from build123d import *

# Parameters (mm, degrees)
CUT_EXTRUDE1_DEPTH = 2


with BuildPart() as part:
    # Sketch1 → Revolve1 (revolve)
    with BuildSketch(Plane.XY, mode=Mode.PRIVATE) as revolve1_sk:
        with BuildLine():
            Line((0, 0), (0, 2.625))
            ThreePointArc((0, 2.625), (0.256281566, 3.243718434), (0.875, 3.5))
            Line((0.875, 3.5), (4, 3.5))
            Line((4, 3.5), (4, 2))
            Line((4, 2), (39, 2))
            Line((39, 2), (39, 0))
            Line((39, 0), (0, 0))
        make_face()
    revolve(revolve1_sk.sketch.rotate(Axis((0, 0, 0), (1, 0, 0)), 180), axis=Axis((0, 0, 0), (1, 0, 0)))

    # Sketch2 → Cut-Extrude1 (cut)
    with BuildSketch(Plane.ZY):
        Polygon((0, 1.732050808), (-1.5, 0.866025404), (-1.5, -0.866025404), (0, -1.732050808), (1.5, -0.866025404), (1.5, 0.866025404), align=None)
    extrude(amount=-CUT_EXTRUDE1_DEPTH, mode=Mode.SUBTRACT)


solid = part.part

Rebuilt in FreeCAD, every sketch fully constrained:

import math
import FreeCAD as App
import Part
import Sketcher
Q = App.Units.Quantity

doc = App.newDocument("Part")
params = doc.addObject("Spreadsheet::Sheet", "Params")
for row, (alias, value) in enumerate([
    ("sketch1_width", "39 mm"),
    ("sketch1_width2", "35 mm"),
    ("sketch1_height", "2 mm"),
    ("sketch1_height2", "1.5 mm"),
    ("revolution_angle", "360 deg"),
    ("pocket1_length", "2 mm"),
], start=1):
    params.set(f"A{row}", alias)
    params.set(f"B{row}", "=" + value)
    params.setAlias(f"B{row}", alias)

body = doc.addObject("PartDesign::Body", "Body")

# Sketch on XY plane
sketch1 = body.newObject("Sketcher::SketchObject", "Sketch")
sketch1.AttachmentSupport = (doc.getObject("XY_Plane"), [""])
sketch1.MapMode = "FlatFace"
sketch1.addGeometry([
    Part.LineSegment(App.Vector(0, 2.6, 0), App.Vector(0, 0, 0)),  # 0
    Part.LineSegment(App.Vector(0, 0, 0), App.Vector(39, 0, 0)),  # 1
    Part.LineSegment(App.Vector(39, 0, 0), App.Vector(39, 2, 0)),  # 2
    Part.LineSegment(App.Vector(39, 2, 0), App.Vector(4, 2, 0)),  # 3
    Part.LineSegment(App.Vector(4, 2, 0), App.Vector(4, 3.5, 0)),  # 4
    Part.LineSegment(App.Vector(4, 3.5, 0), App.Vector(0.9, 3.5, 0)),  # 5
    Part.ArcOfCircle(Part.Circle(App.Vector(0.9, 2.6, 0), App.Vector(0, 0, 1), 0.9), math.radians(90), math.radians(180)),  # 6
], False)
sketch1.addConstraint([
    Sketcher.Constraint("Coincident", 0, 2, 1, 1),
    Sketcher.Constraint("Coincident", 1, 2, 2, 1),
    Sketcher.Constraint("Coincident", 2, 2, 3, 1),
    Sketcher.Constraint("Coincident", 3, 2, 4, 1),
    Sketcher.Constraint("Coincident", 4, 2, 5, 1),
    Sketcher.Constraint("Tangent", 5, 2, 6, 1),
    Sketcher.Constraint("Tangent", 6, 2, 0, 1),
    Sketcher.Constraint("Vertical", 0),
    Sketcher.Constraint("Horizontal", 1),
    Sketcher.Constraint("Vertical", 2),
    Sketcher.Constraint("Horizontal", 3),
    Sketcher.Constraint("Vertical", 4),
    Sketcher.Constraint("Horizontal", 5),
    Sketcher.Constraint("Coincident", 0, 2, -1, 1),
    Sketcher.Constraint("DistanceX", 1, 1, 1, 2, Q("39 mm")),
    Sketcher.Constraint("DistanceX", 3, 2, 3, 1, Q("35 mm")),
    Sketcher.Constraint("DistanceY", 2, 1, 2, 2, Q("2 mm")),
    Sketcher.Constraint("DistanceY", 4, 1, 4, 2, Q("1.5 mm")),
    Sketcher.Constraint("Radius", 6, Q("0.875 mm")),
])
sketch1.setExpression("Constraints[14]", "Params.sketch1_width")
sketch1.setExpression("Constraints[15]", "Params.sketch1_width2")
sketch1.setExpression("Constraints[16]", "Params.sketch1_height")
sketch1.setExpression("Constraints[17]", "Params.sketch1_height2")
revolution = body.newObject("PartDesign::Revolution", "Revolution")
revolution.Profile = sketch1
revolution.ReferenceAxis = (sketch1, ["H_Axis"])
revolution.setExpression("Angle", "Params.revolution_angle")

# Sketch on YZ plane
sketch2 = body.newObject("Sketcher::SketchObject", "Sketch001")
sketch2.AttachmentSupport = (doc.getObject("YZ_Plane"), [""])
sketch2.MapMode = "FlatFace"
sketch2.addGeometry([
    Part.LineSegment(App.Vector(1.7, 0, 0), App.Vector(0.9, -1.5, 0)),  # 0
    Part.LineSegment(App.Vector(0.9, -1.5, 0), App.Vector(-0.9, -1.5, 0)),  # 1
    Part.LineSegment(App.Vector(-0.9, -1.5, 0), App.Vector(-1.7, 0, 0)),  # 2
    Part.LineSegment(App.Vector(-1.7, 0, 0), App.Vector(-0.9, 1.5, 0)),  # 3
    Part.LineSegment(App.Vector(-0.9, 1.5, 0), App.Vector(0.9, 1.5, 0)),  # 4
    Part.LineSegment(App.Vector(0.9, 1.5, 0), App.Vector(1.7, 0, 0)),  # 5
], False)
sketch2.addConstraint([
    Sketcher.Constraint("Coincident", 0, 2, 1, 1),
    Sketcher.Constraint("Coincident", 1, 2, 2, 1),
    Sketcher.Constraint("Coincident", 2, 2, 3, 1),
    Sketcher.Constraint("Coincident", 3, 2, 4, 1),
    Sketcher.Constraint("Coincident", 4, 2, 5, 1),
    Sketcher.Constraint("Coincident", 5, 2, 0, 1),
    Sketcher.Constraint("Horizontal", 1),
    Sketcher.Constraint("Horizontal", 4),
    Sketcher.Constraint("Symmetric", 0, 2, 3, 2, -1, 1),
    Sketcher.Constraint("Symmetric", 2, 2, 5, 2, -1, 1),
    Sketcher.Constraint("PointOnObject", 2, 2, -1),
    Sketcher.Constraint("Parallel", 2, 5),
    Sketcher.Constraint("Vertical", 1, 2, 3, 2),
    Sketcher.Constraint("Angle", 0, Q("-120 deg")),
    Sketcher.Constraint("DistanceY", 1, 2, 3, 2, Q("3 mm")),
    Sketcher.Constraint("DistanceX", 1, 2, 1, 1, Q("1.732051 mm")),
])
pocket1 = body.newObject("PartDesign::Pocket", "Pocket")
pocket1.Profile = sketch2
pocket1.setExpression("Length", "Params.pocket1_length")
pocket1.Reversed = True

doc.recompute()
